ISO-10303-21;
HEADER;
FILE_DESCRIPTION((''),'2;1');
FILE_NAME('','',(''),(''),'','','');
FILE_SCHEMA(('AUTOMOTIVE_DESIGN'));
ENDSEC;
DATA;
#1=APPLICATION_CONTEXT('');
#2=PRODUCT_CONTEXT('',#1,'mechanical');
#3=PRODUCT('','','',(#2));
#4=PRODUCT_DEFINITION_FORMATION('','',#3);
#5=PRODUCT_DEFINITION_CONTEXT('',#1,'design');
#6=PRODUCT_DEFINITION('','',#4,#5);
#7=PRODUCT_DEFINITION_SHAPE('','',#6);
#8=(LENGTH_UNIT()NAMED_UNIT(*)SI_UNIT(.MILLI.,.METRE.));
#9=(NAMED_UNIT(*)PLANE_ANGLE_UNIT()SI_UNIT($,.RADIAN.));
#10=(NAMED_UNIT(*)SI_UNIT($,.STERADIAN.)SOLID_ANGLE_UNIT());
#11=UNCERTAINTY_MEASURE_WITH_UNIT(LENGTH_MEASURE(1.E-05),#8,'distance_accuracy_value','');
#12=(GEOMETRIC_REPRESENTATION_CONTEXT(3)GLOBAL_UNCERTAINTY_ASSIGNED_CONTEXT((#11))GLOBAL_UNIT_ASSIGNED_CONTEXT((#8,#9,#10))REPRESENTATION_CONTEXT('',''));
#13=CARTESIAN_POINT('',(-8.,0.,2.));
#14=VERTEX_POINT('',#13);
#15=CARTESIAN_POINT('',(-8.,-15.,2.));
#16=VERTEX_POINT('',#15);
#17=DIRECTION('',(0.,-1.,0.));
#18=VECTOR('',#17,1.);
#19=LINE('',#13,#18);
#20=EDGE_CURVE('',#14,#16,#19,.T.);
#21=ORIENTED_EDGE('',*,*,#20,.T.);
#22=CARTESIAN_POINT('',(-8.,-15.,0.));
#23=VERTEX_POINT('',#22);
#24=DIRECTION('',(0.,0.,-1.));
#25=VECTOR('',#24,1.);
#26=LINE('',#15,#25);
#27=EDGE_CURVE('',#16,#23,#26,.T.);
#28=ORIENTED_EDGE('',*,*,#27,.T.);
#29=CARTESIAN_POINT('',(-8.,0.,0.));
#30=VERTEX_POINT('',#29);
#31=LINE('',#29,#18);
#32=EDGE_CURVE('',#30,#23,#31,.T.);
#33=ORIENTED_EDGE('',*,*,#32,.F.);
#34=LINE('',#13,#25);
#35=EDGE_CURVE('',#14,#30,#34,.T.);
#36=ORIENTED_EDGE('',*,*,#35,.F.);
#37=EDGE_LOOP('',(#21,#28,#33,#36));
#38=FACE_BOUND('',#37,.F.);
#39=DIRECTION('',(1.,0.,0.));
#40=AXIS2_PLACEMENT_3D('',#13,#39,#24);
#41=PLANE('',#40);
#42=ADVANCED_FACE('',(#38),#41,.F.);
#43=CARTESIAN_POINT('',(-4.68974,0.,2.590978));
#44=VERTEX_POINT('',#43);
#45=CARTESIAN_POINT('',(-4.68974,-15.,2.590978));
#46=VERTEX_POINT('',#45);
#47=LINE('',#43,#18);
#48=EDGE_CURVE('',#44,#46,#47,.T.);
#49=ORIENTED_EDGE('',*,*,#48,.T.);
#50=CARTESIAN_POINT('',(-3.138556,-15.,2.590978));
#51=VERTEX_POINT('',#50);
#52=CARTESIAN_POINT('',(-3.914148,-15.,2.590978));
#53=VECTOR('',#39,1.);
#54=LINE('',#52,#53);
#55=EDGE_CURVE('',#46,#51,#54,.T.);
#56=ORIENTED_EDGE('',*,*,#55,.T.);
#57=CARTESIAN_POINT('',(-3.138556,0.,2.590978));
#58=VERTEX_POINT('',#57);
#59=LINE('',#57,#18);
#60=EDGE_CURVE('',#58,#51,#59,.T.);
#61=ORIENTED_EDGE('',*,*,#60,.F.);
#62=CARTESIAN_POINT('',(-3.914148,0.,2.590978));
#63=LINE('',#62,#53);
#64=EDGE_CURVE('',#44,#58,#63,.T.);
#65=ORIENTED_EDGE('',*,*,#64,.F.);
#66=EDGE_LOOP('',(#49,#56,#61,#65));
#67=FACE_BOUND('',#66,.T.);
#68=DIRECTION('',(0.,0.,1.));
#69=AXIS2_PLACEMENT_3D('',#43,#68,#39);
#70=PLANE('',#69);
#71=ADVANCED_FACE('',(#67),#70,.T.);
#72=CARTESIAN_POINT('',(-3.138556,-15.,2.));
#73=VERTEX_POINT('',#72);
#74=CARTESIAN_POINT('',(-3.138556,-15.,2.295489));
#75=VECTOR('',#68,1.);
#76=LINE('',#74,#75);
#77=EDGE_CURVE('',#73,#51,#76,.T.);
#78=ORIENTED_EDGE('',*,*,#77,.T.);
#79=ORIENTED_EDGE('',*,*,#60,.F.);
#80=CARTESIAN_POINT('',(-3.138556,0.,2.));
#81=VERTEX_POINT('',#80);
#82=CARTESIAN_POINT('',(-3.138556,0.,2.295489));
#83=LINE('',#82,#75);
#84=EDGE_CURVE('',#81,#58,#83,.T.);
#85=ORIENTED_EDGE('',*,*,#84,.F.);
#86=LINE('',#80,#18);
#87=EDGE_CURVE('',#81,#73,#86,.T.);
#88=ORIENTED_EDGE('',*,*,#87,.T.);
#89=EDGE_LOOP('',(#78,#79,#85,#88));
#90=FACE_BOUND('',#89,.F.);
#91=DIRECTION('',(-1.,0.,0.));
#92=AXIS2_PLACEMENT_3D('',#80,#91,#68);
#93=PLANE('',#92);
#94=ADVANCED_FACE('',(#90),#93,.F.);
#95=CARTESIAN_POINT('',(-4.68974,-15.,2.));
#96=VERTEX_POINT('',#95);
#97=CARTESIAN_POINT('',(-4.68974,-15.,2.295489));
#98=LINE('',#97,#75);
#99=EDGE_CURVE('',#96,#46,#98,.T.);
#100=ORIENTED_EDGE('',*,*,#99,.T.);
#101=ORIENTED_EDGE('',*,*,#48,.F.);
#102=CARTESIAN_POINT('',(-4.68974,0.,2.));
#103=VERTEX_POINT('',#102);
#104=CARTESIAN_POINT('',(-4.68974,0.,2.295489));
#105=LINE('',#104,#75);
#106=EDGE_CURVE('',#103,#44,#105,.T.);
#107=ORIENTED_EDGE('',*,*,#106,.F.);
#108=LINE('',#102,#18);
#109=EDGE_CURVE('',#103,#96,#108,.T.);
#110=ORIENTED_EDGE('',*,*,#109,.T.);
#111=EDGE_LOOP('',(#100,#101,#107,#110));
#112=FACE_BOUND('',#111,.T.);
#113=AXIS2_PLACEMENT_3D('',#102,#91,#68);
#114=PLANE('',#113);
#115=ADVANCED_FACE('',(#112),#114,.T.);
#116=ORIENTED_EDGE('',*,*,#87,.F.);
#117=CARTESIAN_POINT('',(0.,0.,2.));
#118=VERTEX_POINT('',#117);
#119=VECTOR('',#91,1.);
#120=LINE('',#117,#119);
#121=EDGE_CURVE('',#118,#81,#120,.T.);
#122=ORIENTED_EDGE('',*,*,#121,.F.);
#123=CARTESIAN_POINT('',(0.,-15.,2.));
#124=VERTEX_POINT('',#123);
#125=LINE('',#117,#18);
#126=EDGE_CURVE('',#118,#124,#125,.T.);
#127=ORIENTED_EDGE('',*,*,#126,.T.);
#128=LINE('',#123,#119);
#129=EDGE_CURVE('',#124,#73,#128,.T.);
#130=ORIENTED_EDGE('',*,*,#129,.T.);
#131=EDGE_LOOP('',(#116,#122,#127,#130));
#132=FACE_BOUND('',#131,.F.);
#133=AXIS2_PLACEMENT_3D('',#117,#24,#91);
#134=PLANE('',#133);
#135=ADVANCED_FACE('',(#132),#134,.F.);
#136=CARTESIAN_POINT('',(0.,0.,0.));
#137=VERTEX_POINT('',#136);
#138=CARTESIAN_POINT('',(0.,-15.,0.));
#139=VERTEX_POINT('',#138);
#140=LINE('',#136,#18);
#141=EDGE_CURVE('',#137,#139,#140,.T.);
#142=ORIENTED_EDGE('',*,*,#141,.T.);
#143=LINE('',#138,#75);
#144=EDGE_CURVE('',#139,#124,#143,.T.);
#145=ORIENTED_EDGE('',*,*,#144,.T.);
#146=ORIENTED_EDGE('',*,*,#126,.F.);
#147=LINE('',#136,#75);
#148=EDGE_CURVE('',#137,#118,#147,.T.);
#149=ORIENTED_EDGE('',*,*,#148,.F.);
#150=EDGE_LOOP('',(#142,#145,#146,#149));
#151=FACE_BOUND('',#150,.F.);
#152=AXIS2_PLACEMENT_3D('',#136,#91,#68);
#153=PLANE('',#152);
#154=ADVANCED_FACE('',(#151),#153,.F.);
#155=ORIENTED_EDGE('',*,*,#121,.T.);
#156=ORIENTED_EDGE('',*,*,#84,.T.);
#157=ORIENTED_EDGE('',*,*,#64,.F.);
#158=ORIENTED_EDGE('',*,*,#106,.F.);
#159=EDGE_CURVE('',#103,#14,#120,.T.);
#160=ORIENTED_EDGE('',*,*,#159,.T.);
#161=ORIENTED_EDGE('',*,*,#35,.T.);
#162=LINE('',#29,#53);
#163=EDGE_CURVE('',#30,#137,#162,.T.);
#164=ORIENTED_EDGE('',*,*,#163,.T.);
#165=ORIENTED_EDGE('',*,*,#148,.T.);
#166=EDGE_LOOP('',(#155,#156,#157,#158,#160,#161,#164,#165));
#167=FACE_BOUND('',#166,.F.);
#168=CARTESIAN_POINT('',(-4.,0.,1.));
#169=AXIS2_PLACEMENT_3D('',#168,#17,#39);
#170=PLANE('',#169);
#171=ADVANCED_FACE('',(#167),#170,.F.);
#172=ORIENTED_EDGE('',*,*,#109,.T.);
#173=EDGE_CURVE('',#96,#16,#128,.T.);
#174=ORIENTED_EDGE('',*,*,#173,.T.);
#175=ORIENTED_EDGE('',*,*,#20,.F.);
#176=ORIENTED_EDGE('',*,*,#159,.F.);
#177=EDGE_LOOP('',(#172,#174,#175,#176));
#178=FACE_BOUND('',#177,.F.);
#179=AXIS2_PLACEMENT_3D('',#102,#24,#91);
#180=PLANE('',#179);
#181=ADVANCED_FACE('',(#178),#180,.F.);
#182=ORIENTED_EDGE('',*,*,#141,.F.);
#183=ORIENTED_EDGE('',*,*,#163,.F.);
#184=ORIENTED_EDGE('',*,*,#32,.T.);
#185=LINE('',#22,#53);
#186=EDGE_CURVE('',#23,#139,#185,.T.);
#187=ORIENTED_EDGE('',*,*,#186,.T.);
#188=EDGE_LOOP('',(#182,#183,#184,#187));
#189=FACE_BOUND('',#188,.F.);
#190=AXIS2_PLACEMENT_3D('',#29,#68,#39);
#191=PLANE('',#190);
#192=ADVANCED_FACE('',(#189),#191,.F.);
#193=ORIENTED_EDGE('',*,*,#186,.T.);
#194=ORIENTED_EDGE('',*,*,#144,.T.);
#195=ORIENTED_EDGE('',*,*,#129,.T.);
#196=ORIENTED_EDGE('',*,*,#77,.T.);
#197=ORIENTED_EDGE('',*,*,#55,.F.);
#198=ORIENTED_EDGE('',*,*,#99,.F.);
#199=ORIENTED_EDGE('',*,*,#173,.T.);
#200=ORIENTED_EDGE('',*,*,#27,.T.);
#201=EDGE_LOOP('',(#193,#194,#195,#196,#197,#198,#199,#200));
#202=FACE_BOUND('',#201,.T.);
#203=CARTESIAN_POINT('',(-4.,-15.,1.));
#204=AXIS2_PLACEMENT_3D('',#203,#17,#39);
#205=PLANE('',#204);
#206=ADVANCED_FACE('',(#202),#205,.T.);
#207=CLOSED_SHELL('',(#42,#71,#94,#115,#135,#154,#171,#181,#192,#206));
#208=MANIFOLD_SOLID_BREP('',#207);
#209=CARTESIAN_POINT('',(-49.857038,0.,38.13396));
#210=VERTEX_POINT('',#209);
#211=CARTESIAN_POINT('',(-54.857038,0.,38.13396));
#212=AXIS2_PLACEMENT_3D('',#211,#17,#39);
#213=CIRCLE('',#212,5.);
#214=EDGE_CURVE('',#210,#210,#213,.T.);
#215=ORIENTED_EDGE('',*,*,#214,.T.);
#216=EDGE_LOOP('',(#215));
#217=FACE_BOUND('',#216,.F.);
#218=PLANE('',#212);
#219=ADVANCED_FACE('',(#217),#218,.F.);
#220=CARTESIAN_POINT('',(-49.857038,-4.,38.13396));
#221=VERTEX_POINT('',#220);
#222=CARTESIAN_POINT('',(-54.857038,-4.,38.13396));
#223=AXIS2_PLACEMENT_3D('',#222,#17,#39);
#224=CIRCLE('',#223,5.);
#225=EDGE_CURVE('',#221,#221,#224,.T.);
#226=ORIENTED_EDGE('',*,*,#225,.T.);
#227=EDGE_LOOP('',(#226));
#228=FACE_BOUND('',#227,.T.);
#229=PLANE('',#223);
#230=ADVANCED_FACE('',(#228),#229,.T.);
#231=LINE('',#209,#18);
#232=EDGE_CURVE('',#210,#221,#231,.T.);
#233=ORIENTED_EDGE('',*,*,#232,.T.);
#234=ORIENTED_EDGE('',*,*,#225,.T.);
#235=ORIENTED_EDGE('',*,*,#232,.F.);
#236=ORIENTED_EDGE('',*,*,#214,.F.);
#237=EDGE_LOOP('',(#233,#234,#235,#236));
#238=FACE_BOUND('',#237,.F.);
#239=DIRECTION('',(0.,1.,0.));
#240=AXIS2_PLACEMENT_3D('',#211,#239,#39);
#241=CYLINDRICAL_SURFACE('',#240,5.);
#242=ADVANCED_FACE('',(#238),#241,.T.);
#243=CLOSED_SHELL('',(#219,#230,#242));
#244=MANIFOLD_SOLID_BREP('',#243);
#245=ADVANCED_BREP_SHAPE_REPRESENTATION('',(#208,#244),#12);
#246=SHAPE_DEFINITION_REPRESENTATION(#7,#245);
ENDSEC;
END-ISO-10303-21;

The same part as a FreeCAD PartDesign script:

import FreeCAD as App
import Part
import Sketcher

V = App.Vector

doc = App.newDocument("Part")
body = doc.addObject("PartDesign::Body", "Body")

# Sketch on XZ plane
sketch1 = body.newObject("Sketcher::SketchObject", "Sketch")
sketch1.AttachmentSupport = (doc.getObject("XZ_Plane"), [""])
sketch1.MapMode = "FlatFace"
sketch1.addGeometry([
    Part.LineSegment(V(-8, 2, 0), V(-8, 0, 0)),  # 0
    Part.LineSegment(V(-8, 0, 0), V(0, 0, 0)),  # 1
    Part.LineSegment(V(0, 0, 0), V(0, 2, 0)),  # 2
    Part.LineSegment(V(0, 2, 0), V(-3.138556, 2, 0)),  # 3
    Part.LineSegment(V(-3.138556, 2, 0), V(-3.138556, 2.590978, 0)),  # 4
    Part.LineSegment(V(-3.138556, 2.590978, 0), V(-4.68974, 2.590978, 0)),  # 5
    Part.LineSegment(V(-4.68974, 2.590978, 0), V(-4.68974, 2, 0)),  # 6
    Part.LineSegment(V(-4.68974, 2, 0), V(-8, 2, 0)),  # 7
], False)
sketch1.addConstraint([
    Sketcher.Constraint("Coincident", 0, 2, 1, 1),
    Sketcher.Constraint("Coincident", 1, 2, 2, 1),
    Sketcher.Constraint("Coincident", 2, 2, 3, 1),
    Sketcher.Constraint("Coincident", 3, 2, 4, 1),
    Sketcher.Constraint("Coincident", 4, 2, 5, 1),
    Sketcher.Constraint("Coincident", 5, 2, 6, 1),
    Sketcher.Constraint("Coincident", 6, 2, 7, 1),
    Sketcher.Constraint("Coincident", 7, 2, 0, 1),
    Sketcher.Constraint("Vertical", 0),
    Sketcher.Constraint("Horizontal", 1),
    Sketcher.Constraint("Vertical", 2),
    Sketcher.Constraint("Horizontal", 3),
    Sketcher.Constraint("Vertical", 4),
    Sketcher.Constraint("Horizontal", 5),
    Sketcher.Constraint("Vertical", 6),
    Sketcher.Constraint("Horizontal", 7),
    Sketcher.Constraint("Coincident", 1, 2, -1, 1),
    Sketcher.Constraint("Horizontal", 3, 2, 6, 2),
    Sketcher.Constraint("DistanceX", 1, 1, 1, 2, 8.0),
    Sketcher.Constraint("DistanceY", 0, 2, 0, 1, 2.0),
    Sketcher.Constraint("DistanceX", 7, 2, 7, 1, 3.31026),
    Sketcher.Constraint("DistanceY", 4, 1, 4, 2, 0.590978),
    Sketcher.Constraint("DistanceX", 3, 2, 3, 1, 3.138556),
])
pad1 = body.newObject("PartDesign::Pad", "Pad")
pad1.Profile = sketch1
pad1.Length = 15
body2 = doc.addObject("PartDesign::Body", "Body001")

# Sketch on XZ plane
sketch2 = body2.newObject("Sketcher::SketchObject", "Sketch001")
sketch2.AttachmentSupport = (doc.getObject("XZ_Plane001"), [""])
sketch2.MapMode = "FlatFace"
sketch2.addGeometry(Part.Circle(V(-54.857038, 38.13396, 0), V(0, 0, 1), 5), False)
sketch2.addConstraint([
    Sketcher.Constraint("Diameter", 0, 10.0),
    Sketcher.Constraint("DistanceX", 0, 3, -1, 1, 54.857038),
    Sketcher.Constraint("DistanceY", -1, 1, 0, 3, 38.13396),
])
pad2 = body2.newObject("PartDesign::Pad", "Pad001")
pad2.Profile = sketch2
pad2.Length = 4

doc.recompute()
